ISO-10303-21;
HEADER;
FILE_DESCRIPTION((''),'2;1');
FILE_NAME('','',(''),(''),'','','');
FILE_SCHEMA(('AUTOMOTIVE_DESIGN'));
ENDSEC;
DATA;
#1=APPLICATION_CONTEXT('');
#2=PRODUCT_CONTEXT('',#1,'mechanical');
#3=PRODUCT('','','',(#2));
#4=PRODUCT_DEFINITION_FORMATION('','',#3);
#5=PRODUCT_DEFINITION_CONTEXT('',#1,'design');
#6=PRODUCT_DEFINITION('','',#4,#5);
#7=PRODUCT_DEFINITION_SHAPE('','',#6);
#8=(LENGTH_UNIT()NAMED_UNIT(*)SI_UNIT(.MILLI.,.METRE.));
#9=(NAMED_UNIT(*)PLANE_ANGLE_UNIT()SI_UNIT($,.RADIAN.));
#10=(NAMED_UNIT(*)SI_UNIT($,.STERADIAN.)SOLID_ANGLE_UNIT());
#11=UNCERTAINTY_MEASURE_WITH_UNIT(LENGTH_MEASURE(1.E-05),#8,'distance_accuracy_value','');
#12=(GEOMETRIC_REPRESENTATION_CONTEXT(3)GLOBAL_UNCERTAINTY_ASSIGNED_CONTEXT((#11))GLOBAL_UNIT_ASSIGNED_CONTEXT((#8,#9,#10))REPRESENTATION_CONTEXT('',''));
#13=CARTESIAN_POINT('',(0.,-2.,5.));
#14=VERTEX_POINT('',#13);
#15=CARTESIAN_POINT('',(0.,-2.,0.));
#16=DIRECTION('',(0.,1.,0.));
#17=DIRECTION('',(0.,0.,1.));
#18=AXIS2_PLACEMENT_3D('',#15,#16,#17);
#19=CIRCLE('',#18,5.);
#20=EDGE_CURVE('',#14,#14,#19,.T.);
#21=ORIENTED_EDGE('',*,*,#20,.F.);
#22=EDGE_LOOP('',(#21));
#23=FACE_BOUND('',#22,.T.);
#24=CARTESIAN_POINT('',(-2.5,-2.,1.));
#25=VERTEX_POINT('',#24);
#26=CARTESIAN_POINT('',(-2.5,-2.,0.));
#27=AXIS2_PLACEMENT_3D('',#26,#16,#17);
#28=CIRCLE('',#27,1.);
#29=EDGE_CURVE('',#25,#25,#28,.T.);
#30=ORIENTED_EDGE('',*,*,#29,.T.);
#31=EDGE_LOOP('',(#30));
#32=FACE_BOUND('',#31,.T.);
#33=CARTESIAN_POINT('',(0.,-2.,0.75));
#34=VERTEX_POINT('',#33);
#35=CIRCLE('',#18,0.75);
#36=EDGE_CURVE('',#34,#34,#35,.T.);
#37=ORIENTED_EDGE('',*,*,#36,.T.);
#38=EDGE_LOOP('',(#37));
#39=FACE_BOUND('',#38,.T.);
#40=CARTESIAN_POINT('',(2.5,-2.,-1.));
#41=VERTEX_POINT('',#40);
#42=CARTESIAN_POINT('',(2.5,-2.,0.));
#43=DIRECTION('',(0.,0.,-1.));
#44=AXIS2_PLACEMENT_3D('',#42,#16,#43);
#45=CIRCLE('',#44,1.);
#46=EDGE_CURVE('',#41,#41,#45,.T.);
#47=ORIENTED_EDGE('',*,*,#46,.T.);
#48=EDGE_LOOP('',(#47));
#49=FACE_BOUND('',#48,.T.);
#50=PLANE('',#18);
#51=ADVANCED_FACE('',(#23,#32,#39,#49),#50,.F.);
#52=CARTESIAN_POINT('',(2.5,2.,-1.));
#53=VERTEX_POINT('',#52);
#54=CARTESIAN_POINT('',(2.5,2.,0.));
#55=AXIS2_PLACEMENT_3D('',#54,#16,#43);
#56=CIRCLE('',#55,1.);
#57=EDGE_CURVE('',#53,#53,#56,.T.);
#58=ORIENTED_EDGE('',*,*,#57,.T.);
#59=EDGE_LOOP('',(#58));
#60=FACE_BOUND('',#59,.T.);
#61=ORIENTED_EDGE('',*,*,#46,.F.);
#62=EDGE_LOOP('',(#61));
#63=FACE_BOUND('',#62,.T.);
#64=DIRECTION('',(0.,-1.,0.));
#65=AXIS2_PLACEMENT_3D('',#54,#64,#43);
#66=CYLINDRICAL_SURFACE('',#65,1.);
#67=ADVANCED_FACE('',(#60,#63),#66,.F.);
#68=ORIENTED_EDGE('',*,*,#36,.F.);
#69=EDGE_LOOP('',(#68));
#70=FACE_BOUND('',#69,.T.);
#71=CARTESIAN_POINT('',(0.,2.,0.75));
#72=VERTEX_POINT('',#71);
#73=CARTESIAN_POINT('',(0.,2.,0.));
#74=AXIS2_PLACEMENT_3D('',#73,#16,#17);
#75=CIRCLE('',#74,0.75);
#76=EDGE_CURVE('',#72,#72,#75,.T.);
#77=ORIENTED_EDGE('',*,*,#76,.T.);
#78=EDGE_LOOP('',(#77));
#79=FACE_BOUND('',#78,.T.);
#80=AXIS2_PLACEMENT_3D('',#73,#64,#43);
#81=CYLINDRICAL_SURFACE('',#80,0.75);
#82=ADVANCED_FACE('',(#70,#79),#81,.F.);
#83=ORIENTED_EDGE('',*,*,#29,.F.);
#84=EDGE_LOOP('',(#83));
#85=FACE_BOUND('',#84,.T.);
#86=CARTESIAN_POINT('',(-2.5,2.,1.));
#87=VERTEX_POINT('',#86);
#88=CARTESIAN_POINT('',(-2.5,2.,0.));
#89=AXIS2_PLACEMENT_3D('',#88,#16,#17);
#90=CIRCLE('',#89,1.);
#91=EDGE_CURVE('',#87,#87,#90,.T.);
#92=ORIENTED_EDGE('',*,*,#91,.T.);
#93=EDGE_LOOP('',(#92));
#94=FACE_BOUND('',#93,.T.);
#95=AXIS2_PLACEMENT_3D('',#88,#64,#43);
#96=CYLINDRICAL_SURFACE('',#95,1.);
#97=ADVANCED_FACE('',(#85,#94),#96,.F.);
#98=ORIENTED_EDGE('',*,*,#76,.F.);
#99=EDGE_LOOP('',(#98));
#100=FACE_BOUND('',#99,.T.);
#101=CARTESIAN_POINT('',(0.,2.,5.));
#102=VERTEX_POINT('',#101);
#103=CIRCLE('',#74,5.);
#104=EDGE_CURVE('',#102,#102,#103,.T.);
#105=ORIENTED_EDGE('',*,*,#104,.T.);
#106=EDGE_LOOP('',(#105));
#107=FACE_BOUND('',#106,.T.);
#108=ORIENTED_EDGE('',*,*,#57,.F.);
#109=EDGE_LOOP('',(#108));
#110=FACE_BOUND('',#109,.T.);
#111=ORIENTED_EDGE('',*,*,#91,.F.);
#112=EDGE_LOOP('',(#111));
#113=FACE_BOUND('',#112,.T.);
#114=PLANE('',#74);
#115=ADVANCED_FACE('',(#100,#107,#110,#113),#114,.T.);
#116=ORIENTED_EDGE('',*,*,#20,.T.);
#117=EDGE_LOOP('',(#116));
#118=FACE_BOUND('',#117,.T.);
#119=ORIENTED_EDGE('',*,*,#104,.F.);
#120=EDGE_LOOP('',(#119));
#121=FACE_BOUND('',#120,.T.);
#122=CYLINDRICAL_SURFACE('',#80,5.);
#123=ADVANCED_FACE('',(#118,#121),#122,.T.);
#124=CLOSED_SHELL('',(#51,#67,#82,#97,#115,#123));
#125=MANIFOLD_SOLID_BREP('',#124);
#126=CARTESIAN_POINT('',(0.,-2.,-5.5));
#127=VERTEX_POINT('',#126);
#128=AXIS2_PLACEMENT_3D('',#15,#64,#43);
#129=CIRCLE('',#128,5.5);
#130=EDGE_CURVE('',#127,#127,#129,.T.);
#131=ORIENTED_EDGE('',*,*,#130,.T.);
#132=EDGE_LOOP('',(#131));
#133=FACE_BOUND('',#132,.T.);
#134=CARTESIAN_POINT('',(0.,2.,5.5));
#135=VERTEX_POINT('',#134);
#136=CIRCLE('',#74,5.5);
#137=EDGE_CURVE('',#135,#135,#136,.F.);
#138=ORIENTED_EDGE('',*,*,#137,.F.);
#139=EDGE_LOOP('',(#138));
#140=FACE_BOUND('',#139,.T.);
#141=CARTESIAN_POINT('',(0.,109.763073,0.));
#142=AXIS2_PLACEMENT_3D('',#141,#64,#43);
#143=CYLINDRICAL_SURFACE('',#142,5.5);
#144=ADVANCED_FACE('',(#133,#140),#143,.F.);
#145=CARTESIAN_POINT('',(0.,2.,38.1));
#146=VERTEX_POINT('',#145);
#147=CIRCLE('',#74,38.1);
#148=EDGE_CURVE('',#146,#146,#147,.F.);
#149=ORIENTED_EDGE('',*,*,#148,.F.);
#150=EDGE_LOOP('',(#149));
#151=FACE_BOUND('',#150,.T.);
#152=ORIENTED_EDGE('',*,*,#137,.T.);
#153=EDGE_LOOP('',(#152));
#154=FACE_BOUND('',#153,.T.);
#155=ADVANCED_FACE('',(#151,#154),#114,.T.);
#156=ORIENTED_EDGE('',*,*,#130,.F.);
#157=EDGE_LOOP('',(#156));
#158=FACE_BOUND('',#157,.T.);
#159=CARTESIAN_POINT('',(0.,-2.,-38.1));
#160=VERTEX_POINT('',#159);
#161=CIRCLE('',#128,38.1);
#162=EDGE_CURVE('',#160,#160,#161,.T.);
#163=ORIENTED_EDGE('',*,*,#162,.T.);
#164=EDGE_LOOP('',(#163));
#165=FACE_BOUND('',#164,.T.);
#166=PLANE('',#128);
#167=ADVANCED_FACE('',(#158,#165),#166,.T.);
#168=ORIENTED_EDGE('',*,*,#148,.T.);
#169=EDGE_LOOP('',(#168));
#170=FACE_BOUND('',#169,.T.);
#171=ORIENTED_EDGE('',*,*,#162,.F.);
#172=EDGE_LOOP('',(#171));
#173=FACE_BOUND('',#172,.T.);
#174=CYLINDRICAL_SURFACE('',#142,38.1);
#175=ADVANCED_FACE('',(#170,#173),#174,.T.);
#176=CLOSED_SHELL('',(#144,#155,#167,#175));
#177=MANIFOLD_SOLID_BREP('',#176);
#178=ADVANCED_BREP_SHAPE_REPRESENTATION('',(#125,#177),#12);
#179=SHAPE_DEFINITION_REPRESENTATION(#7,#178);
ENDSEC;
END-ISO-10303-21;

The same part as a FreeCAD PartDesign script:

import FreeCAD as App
import Part
import Sketcher

V = App.Vector

doc = App.newDocument("Part")
body = doc.addObject("PartDesign::Body", "Body")

sketch1 = doc.addObject("Sketcher::SketchObject", "Sketch")
body.addObject(sketch1)
sketch1.AttachmentSupport = (doc.XZ_Plane, [""])
sketch1.MapMode = "FlatFace"
sketch1.addGeometry([
    Part.Circle(V(0, 0, 0), V(0, 0, 1), 5),
    Part.Circle(V(-2.5, 0, 0), V(0, 0, 1), 1),
    Part.Circle(V(0, 0, 0), V(0, 0, 1), 0.75),
    Part.Circle(V(2.5, 0, 0), V(0, 0, 1), 1),
], False)
sketch1.addConstraint([
    Sketcher.Constraint("Coincident", 0, 3, -1, 1),
    Sketcher.Constraint("Coincident", 2, 3, -1, 1),
    Sketcher.Constraint("Equal", 1, 3),
    Sketcher.Constraint("Symmetric", 1, 3, 3, 3, -1, 1),
    Sketcher.Constraint("PointOnObject", 1, 3, -1),
    Sketcher.Constraint("Diameter", 0, 10.0),
    Sketcher.Constraint("Diameter", 1, 2.0),
    Sketcher.Constraint("Diameter", 2, 1.5),
    Sketcher.Constraint("DistanceX", 1, 3, 3, 3, 5.0),
])
pad1 = doc.addObject("PartDesign::Pad", "Pad")
body.addObject(pad1)
pad1.Profile = sketch1
pad1.Length = 4
pad1.Midplane = True
body2 = doc.addObject("PartDesign::Body", "Body001")

sketch2 = doc.addObject("Sketcher::SketchObject", "Sketch001")
body2.addObject(sketch2)
sketch2.AttachmentSupport = (doc.getObject("XZ_Plane001"), [""])
sketch2.MapMode = "FlatFace"
sketch2.AttachmentOffset = App.Placement(V(0, 0, 2), App.Rotation())
sketch2.addGeometry([
    Part.Circle(V(0, 0, 0), V(0, 0, 1), 38.1),
    Part.Circle(V(0, 0, 0), V(0, 0, 1), 5.5),
], False)
sketch2.addConstraint([
    Sketcher.Constraint("Coincident", 0, 3, -1, 1),
    Sketcher.Constraint("Coincident", 1, 3, -1, 1),
    Sketcher.Constraint("Diameter", 1, 11.0),
    Sketcher.Constraint("Diameter", 0, 76.2),
])
pad2 = doc.addObject("PartDesign::Pad", "Pad001")
body2.addObject(pad2)
pad2.Profile = sketch2
pad2.Length = 4
pad2.Reversed = True

doc.recompute()
